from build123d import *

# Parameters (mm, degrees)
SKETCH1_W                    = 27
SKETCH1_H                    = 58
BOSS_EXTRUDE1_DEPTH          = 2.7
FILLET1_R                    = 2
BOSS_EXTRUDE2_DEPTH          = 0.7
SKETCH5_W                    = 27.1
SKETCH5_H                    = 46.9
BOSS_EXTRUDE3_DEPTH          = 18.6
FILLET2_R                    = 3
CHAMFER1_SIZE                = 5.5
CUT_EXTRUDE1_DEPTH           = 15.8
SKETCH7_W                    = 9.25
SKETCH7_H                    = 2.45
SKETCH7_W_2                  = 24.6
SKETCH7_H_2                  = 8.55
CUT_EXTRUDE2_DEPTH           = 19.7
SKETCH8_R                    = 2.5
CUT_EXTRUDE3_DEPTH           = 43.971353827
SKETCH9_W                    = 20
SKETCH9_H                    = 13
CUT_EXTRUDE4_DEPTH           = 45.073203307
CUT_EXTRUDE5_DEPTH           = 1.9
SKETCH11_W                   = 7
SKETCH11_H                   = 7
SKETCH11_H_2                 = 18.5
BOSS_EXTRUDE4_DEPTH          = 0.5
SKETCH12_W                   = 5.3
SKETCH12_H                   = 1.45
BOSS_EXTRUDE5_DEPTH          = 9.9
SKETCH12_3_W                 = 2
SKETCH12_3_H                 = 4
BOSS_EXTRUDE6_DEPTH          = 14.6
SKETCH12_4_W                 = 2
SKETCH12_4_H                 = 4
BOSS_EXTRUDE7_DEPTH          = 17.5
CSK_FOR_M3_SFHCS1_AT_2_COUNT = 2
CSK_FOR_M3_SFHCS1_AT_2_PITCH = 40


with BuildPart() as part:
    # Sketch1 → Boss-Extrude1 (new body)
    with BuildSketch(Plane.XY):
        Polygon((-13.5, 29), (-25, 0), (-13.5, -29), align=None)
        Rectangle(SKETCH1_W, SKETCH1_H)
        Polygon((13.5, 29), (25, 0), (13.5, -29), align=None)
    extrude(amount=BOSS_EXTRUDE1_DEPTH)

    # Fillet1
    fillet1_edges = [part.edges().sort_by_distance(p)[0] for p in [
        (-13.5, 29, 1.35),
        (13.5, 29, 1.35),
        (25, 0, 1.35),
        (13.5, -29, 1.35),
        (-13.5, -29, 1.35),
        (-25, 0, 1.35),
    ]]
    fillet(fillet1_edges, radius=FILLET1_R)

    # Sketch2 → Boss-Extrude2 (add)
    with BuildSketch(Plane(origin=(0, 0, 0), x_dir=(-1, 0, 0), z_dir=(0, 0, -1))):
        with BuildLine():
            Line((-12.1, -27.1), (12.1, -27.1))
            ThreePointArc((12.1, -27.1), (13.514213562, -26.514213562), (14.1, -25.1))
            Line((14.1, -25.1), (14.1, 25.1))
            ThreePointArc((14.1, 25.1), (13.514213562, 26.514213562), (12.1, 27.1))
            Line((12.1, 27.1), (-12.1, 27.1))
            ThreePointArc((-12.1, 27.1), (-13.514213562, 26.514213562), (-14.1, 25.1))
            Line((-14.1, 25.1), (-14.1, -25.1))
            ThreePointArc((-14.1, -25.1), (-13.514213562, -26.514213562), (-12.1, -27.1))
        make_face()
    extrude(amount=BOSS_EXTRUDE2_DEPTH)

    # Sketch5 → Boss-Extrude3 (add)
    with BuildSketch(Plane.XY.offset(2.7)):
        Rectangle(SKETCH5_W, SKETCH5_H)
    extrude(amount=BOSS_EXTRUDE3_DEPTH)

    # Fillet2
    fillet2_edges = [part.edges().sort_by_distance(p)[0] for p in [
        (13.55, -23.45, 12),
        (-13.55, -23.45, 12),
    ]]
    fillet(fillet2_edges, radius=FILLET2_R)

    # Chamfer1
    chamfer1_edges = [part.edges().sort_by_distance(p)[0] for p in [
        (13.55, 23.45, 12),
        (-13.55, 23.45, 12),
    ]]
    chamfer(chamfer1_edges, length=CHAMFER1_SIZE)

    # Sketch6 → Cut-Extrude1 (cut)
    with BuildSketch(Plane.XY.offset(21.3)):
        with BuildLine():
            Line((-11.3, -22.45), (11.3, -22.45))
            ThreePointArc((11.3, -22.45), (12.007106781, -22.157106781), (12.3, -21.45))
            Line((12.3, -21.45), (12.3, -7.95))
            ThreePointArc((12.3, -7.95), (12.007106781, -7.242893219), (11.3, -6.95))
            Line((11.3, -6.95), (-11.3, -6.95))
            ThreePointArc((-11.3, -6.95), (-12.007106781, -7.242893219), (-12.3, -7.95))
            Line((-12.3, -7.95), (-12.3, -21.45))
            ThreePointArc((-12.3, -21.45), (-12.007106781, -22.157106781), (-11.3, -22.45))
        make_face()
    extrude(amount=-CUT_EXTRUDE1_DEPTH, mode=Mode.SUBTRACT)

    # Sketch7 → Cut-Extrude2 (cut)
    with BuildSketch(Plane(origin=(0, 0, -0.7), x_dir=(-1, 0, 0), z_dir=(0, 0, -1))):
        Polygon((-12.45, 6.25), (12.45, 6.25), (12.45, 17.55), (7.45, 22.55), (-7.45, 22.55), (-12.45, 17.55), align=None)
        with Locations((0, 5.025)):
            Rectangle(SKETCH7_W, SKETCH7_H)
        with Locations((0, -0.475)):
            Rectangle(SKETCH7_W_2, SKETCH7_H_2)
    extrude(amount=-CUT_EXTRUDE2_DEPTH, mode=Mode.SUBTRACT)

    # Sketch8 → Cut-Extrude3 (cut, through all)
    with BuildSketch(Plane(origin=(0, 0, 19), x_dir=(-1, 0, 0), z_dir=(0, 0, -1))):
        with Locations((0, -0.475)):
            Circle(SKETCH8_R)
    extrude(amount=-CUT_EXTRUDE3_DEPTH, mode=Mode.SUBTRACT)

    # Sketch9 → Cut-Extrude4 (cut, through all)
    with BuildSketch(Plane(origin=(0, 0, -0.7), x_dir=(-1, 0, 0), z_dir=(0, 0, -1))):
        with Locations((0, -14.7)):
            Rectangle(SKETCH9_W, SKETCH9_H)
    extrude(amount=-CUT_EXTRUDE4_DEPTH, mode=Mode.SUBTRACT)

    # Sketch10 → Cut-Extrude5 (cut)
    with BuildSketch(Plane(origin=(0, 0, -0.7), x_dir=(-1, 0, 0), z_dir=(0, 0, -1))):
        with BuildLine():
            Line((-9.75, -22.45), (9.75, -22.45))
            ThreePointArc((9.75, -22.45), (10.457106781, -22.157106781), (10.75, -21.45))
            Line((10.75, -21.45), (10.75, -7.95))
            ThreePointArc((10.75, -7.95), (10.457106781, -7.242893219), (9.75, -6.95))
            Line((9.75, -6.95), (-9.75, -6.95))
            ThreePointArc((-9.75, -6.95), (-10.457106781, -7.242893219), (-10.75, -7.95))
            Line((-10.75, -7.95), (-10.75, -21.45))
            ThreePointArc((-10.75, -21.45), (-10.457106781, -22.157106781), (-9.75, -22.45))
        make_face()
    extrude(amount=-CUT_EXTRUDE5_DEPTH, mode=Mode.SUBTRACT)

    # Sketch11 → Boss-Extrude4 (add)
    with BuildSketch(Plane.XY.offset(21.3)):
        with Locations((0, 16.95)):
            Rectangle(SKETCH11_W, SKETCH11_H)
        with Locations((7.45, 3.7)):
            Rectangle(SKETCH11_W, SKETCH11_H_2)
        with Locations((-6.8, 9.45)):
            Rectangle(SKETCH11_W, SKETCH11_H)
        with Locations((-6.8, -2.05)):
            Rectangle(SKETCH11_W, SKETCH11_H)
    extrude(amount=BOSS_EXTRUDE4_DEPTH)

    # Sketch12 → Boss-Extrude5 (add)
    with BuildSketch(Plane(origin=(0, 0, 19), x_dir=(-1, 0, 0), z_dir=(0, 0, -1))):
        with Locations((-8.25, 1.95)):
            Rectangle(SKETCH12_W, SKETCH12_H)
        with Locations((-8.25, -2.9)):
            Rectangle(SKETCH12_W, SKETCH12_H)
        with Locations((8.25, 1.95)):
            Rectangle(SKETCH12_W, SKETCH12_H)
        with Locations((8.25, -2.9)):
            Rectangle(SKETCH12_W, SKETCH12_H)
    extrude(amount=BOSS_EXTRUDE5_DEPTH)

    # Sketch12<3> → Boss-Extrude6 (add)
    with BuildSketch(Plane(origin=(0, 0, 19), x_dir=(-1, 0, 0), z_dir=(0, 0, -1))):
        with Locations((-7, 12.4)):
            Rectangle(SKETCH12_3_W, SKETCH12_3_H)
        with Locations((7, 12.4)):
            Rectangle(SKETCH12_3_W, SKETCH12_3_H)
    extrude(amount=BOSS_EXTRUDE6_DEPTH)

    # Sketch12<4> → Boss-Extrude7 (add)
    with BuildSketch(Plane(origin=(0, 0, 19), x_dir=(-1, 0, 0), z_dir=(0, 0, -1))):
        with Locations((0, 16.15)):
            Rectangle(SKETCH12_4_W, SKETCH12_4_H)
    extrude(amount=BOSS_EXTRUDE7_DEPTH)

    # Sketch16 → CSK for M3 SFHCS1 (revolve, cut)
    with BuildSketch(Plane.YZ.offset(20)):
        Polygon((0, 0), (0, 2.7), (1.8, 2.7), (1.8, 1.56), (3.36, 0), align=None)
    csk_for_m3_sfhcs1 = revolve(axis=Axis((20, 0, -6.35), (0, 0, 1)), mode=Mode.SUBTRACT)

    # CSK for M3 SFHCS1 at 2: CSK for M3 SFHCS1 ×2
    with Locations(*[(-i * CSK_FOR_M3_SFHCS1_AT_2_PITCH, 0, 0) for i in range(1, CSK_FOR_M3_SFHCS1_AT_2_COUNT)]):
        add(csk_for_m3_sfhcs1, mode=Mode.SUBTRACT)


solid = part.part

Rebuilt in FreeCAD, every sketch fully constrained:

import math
import FreeCAD as App
import Part
import Sketcher
Q = App.Units.Quantity


def edges_at(feature, points):
    """Names of the edges that pass closest to the given points."""
    edges = feature.Shape.Edges
    near = lambda p: min(range(len(edges)), key=lambda i: edges[i].distToShape(Part.Vertex(*p))[0])
    return sorted({f"Edge{near(p) + 1}" for p in points})

doc = App.newDocument("Part")
params = doc.addObject("Spreadsheet::Sheet", "Params")
for row, (alias, value) in enumerate([
    ("sketch1_width", "27 mm"),
    ("pad1_length", "2.7 mm"),
    ("fillet_radius", "2 mm"),
    ("sketch2_radius", "2 mm"),
    ("sketch2_width", "24.2 mm"),
    ("sketch2_height", "50.2 mm"),
    ("pad2_length", "0.7 mm"),
    ("sketch3_width", "27.1 mm"),
    ("sketch3_height", "46.9 mm"),
    ("pad3_length", "18.6 mm"),
    ("fillet2_radius", "3 mm"),
    ("chamfer_size", "5.5 mm"),
    ("sketch4_radius", "1 mm"),
    ("sketch4_width", "22.6 mm"),
    ("sketch4_height", "13.5 mm"),
    ("pocket1_length", "15.8 mm"),
    ("sketch5_width", "24.6 mm"),
    ("sketch5_width2", "14.9 mm"),
    ("sketch5_height", "11.3 mm"),
    ("sketch5_height2", "2.45 mm"),
    ("pocket2_length", "19.7 mm"),
    ("sketch6_diameter", "5 mm"),
    ("sketch7_width", "20 mm"),
    ("sketch7_height", "13 mm"),
    ("sketch8_radius", "1 mm"),
    ("sketch8_width", "19.5 mm"),
    ("sketch8_height", "13.5 mm"),
    ("pocket5_length", "1.9 mm"),
    ("sketch9_width", "7 mm"),
    ("sketch9_height", "18.5 mm"),
    ("pad4_length", "0.5 mm"),
    ("sketch10_width", "5.3 mm"),
    ("sketch10_height", "1.45 mm"),
    ("pad5_length", "9.9 mm"),
    ("sketch11_width", "2 mm"),
    ("sketch11_height", "4 mm"),
    ("pad6_length", "14.6 mm"),
    ("sketch12_width", "2 mm"),
    ("sketch12_height", "4 mm"),
    ("pad7_length", "17.5 mm"),
    ("sketch13_width", "1.8 mm"),
    ("sketch13_height", "2.7 mm"),
    ("sketch13_width2", "3.36 mm"),
    ("groove_angle", "360 deg"),
    ("linearpattern_pitch", "40 mm"),
], start=1):
    params.set(f"A{row}", alias)
    params.set(f"B{row}", "=" + value)
    params.setAlias(f"B{row}", alias)

body = doc.addObject("PartDesign::Body", "Body")

# Sketch on XY plane
sketch1 = body.newObject("Sketcher::SketchObject", "Sketch")
sketch1.AttachmentSupport = (doc.getObject("XY_Plane"), [""])
sketch1.MapMode = "FlatFace"
sketch1.addGeometry(Part.LineSegment(App.Vector(-14, 29, 0), App.Vector(-25, 0, 0)), False)
sketch1.addGeometry(Part.LineSegment(App.Vector(-25, 0, 0), App.Vector(-14, -29, 0)), False)
sketch1.addGeometry(Part.LineSegment(App.Vector(-14, -29, 0), App.Vector(14, -29, 0)), False)
sketch1.addGeometry(Part.LineSegment(App.Vector(14, -29, 0), App.Vector(25, 0, 0)), False)
sketch1.addGeometry(Part.LineSegment(App.Vector(25, 0, 0), App.Vector(14, 29, 0)), False)
sketch1.addGeometry(Part.LineSegment(App.Vector(14, 29, 0), App.Vector(-14, 29, 0)), False)
sketch1.addConstraint(Sketcher.Constraint("Coincident", 0, 2, 1, 1))
sketch1.addConstraint(Sketcher.Constraint("Coincident", 1, 2, 2, 1))
sketch1.addConstraint(Sketcher.Constraint("Coincident", 2, 2, 3, 1))
sketch1.addConstraint(Sketcher.Constraint("Coincident", 3, 2, 4, 1))
sketch1.addConstraint(Sketcher.Constraint("Coincident", 4, 2, 5, 1))
sketch1.addConstraint(Sketcher.Constraint("Coincident", 5, 2, 0, 1))
sketch1.addConstraint(Sketcher.Constraint("Horizontal", 2))
sketch1.addConstraint(Sketcher.Constraint("Horizontal", 5))
sketch1.addConstraint(Sketcher.Constraint("Symmetric", 0, 2, 3, 2, -1, 1))
sketch1.addConstraint(Sketcher.Constraint("Symmetric", 1, 2, 4, 2, -1, 1))
sketch1.addConstraint(Sketcher.Constraint("PointOnObject", 0, 2, -1))
sketch1.addConstraint(Sketcher.Constraint("Parallel", 0, 3))
sketch1.addConstraint(Sketcher.Constraint("Vertical", 2, 2, 4, 2))
sketch1.addConstraint(Sketcher.Constraint("DistanceX", 2, 1, 2, 2, 27.0))
sketch1.addConstraint(Sketcher.Constraint("DistanceX", 0, 2, -1, 1, 25.0))
sketch1.addConstraint(Sketcher.Constraint("DistanceY", 1, 2, -1, 1, 29.0))
sketch1.setExpression("Constraints[13]", "Params.sketch1_width")
pad1 = body.newObject("PartDesign::Pad", "Pad")
pad1.Profile = sketch1
pad1.setExpression("Length", "Params.pad1_length")
doc.recompute()

fillet = body.newObject("PartDesign::Fillet", "Fillet")
fillet.Base = (pad1, edges_at(pad1, [
    (-13.5, 29, 1.35),
    (13.5, 29, 1.35),
    (25, 0, 1.35),
    (13.5, -29, 1.35),
    (-13.5, -29, 1.35),
    (-25, 0, 1.35),
]))
fillet.setExpression("Radius", "Params.fillet_radius")

# Sketch on XY plane
sketch2 = body.newObject("Sketcher::SketchObject", "Sketch001")
sketch2.AttachmentSupport = (doc.getObject("XY_Plane"), [""])
sketch2.MapMode = "FlatFace"
sketch2.addGeometry(Part.LineSegment(App.Vector(12.1, -27.1, 0), App.Vector(-12.1, -27.1, 0)), False)
sketch2.addGeometry(Part.ArcOfCircle(Part.Circle(App.Vector(-12.1, -25.1, 0), App.Vector(0, 0, 1), 2), math.radians(-180), math.radians(-90)), False)
sketch2.addGeometry(Part.LineSegment(App.Vector(-14.1, -25.1, 0), App.Vector(-14.1, 25.1, 0)), False)
sketch2.addGeometry(Part.ArcOfCircle(Part.Circle(App.Vector(-12.1, 25.1, 0), App.Vector(0, 0, 1), 2), math.radians(90), math.radians(180)), False)
sketch2.addGeometry(Part.LineSegment(App.Vector(-12.1, 27.1, 0), App.Vector(12.1, 27.1, 0)), False)
sketch2.addGeometry(Part.ArcOfCircle(Part.Circle(App.Vector(12.1, 25.1, 0), App.Vector(0, 0, 1), 2), math.radians(0), math.radians(90)), False)
sketch2.addGeometry(Part.LineSegment(App.Vector(14.1, 25.1, 0), App.Vector(14.1, -25.1, 0)), False)
sketch2.addGeometry(Part.ArcOfCircle(Part.Circle(App.Vector(12.1, -25.1, 0), App.Vector(0, 0, 1), 2), math.radians(-90), math.radians(0)), False)
sketch2.addConstraint(Sketcher.Constraint("Tangent", 0, 2, 1, 2))
sketch2.addConstraint(Sketcher.Constraint("Tangent", 1, 1, 2, 1))
sketch2.addConstraint(Sketcher.Constraint("Tangent", 2, 2, 3, 2))
sketch2.addConstraint(Sketcher.Constraint("Tangent", 3, 1, 4, 1))
sketch2.addConstraint(Sketcher.Constraint("Tangent", 4, 2, 5, 2))
sketch2.addConstraint(Sketcher.Constraint("Tangent", 5, 1, 6, 1))
sketch2.addConstraint(Sketcher.Constraint("Tangent", 6, 2, 7, 2))
sketch2.addConstraint(Sketcher.Constraint("Tangent", 7, 1, 0, 1))
sketch2.addConstraint(Sketcher.Constraint("Horizontal", 0))
sketch2.addConstraint(Sketcher.Constraint("Vertical", 2))
sketch2.addConstraint(Sketcher.Constraint("Horizontal", 4))
sketch2.addConstraint(Sketcher.Constraint("Vertical", 6))
sketch2.addConstraint(Sketcher.Constraint("Equal", 1, 3))
sketch2.addConstraint(Sketcher.Constraint("Equal", 3, 5))
sketch2.addConstraint(Sketcher.Constraint("Equal", 5, 7))
sketch2.addConstraint(Sketcher.Constraint("Symmetric", 1, 3, 5, 3, -1, 1))
sketch2.addConstraint(Sketcher.Constraint("Radius", 1, 2.0))
sketch2.addConstraint(Sketcher.Constraint("DistanceX", 0, 2, 0, 1, 24.2))
sketch2.addConstraint(Sketcher.Constraint("DistanceY", 2, 1, 2, 2, 50.2))
sketch2.setExpression("Constraints[16]", "Params.sketch2_radius")
sketch2.setExpression("Constraints[17]", "Params.sketch2_width")
sketch2.setExpression("Constraints[18]", "Params.sketch2_height")
pad2 = body.newObject("PartDesign::Pad", "Pad001")
pad2.Profile = sketch2
pad2.setExpression("Length", "Params.pad2_length")
pad2.Reversed = True

# Sketch on XY plane
sketch3 = body.newObject("Sketcher::SketchObject", "Sketch002")
sketch3.AttachmentSupport = (doc.getObject("XY_Plane"), [""])
sketch3.MapMode = "FlatFace"
sketch3.AttachmentOffset = App.Placement(App.Vector(0, 0, 2.7), App.Rotation())
sketch3.addGeometry(Part.LineSegment(App.Vector(-14, 23, 0), App.Vector(-14, -23, 0)), False)
sketch3.addGeometry(Part.LineSegment(App.Vector(-14, -23, 0), App.Vector(14, -23, 0)), False)
sketch3.addGeometry(Part.LineSegment(App.Vector(14, -23, 0), App.Vector(14, 23, 0)), False)
sketch3.addGeometry(Part.LineSegment(App.Vector(14, 23, 0), App.Vector(-14, 23, 0)), False)
sketch3.addConstraint(Sketcher.Constraint("Coincident", 0, 2, 1, 1))
sketch3.addConstraint(Sketcher.Constraint("Coincident", 1, 2, 2, 1))
sketch3.addConstraint(Sketcher.Constraint("Coincident", 2, 2, 3, 1))
sketch3.addConstraint(Sketcher.Constraint("Coincident", 3, 2, 0, 1))
sketch3.addConstraint(Sketcher.Constraint("Vertical", 0))
sketch3.addConstraint(Sketcher.Constraint("Horizontal", 1))
sketch3.addConstraint(Sketcher.Constraint("Vertical", 2))
sketch3.addConstraint(Sketcher.Constraint("Horizontal", 3))
sketch3.addConstraint(Sketcher.Constraint("Symmetric", 0, 2, 2, 2, -1, 1))
sketch3.addConstraint(Sketcher.Constraint("DistanceX", 1, 1, 1, 2, 27.1))
sketch3.addConstraint(Sketcher.Constraint("DistanceY", 0, 2, 0, 1, 46.9))
sketch3.setExpression("Constraints[9]", "Params.sketch3_width")
sketch3.setExpression("Constraints[10]", "Params.sketch3_height")
pad3 = body.newObject("PartDesign::Pad", "Pad002")
pad3.Profile = sketch3
pad3.setExpression("Length", "Params.pad3_length")
doc.recompute()

fillet2 = body.newObject("PartDesign::Fillet", "Fillet001")
fillet2.Base = (pad3, edges_at(pad3, [(13.55, -23.45, 12), (-13.55, -23.45, 12)]))
fillet2.setExpression("Radius", "Params.fillet2_radius")
doc.recompute()

chamfer = body.newObject("PartDesign::Chamfer", "Chamfer")
chamfer.Base = (fillet2, edges_at(fillet2, [(13.55, 23.45, 12), (-13.55, 23.45, 12)]))
chamfer.setExpression("Size", "Params.chamfer_size")

# Sketch on XY plane
sketch4 = body.newObject("Sketcher::SketchObject", "Sketch003")
sketch4.AttachmentSupport = (doc.getObject("XY_Plane"), [""])
sketch4.MapMode = "FlatFace"
sketch4.AttachmentOffset = App.Placement(App.Vector(0, 0, 21.3), App.Rotation())
sketch4.addGeometry(Part.LineSegment(App.Vector(-11.3, -22.4, 0), App.Vector(11.3, -22.4, 0)), False)
sketch4.addGeometry(Part.ArcOfCircle(Part.Circle(App.Vector(11.3, -21.4, 0), App.Vector(0, 0, 1), 1), math.radians(-90), math.radians(0)), False)
sketch4.addGeometry(Part.LineSegment(App.Vector(12.3, -21.4, 0), App.Vector(12.3, -8, 0)), False)
sketch4.addGeometry(Part.ArcOfCircle(Part.Circle(App.Vector(11.3, -8, 0), App.Vector(0, 0, 1), 1), math.radians(0), math.radians(90)), False)
sketch4.addGeometry(Part.LineSegment(App.Vector(11.3, -7, 0), App.Vector(-11.3, -7, 0)), False)
sketch4.addGeometry(Part.ArcOfCircle(Part.Circle(App.Vector(-11.3, -8, 0), App.Vector(0, 0, 1), 1), math.radians(90), math.radians(180)), False)
sketch4.addGeometry(Part.LineSegment(App.Vector(-12.3, -8, 0), App.Vector(-12.3, -21.4, 0)), False)
sketch4.addGeometry(Part.ArcOfCircle(Part.Circle(App.Vector(-11.3, -21.4, 0), App.Vector(0, 0, 1), 1), math.radians(-180), math.radians(-90)), False)
sketch4.addConstraint(Sketcher.Constraint("Tangent", 0, 2, 1, 1))
sketch4.addConstraint(Sketcher.Constraint("Tangent", 1, 2, 2, 1))
sketch4.addConstraint(Sketcher.Constraint("Tangent", 2, 2, 3, 1))
sketch4.addConstraint(Sketcher.Constraint("Tangent", 3, 2, 4, 1))
sketch4.addConstraint(Sketcher.Constraint("Tangent", 4, 2, 5, 1))
sketch4.addConstraint(Sketcher.Constraint("Tangent", 5, 2, 6, 1))
sketch4.addConstraint(Sketcher.Constraint("Tangent", 6, 2, 7, 1))
sketch4.addConstraint(Sketcher.Constraint("Tangent", 7, 2, 0, 1))
sketch4.addConstraint(Sketcher.Constraint("Horizontal", 0))
sketch4.addConstraint(Sketcher.Constraint("Vertical", 2))
sketch4.addConstraint(Sketcher.Constraint("Horizontal", 4))
sketch4.addConstraint(Sketcher.Constraint("Vertical", 6))
sketch4.addConstraint(Sketcher.Constraint("Equal", 1, 3))
sketch4.addConstraint(Sketcher.Constraint("Equal", 3, 5))
sketch4.addConstraint(Sketcher.Constraint("Equal", 5, 7))
sketch4.addConstraint(Sketcher.Constraint("Radius", 1, 1.0))
sketch4.addConstraint(Sketcher.Constraint("DistanceX", 0, 1, 0, 2, 22.6))
sketch4.addConstraint(Sketcher.Constraint("DistanceY", 2, 1, 2, 2, 13.5))
sketch4.addConstraint(Sketcher.Constraint("DistanceX", -1, 1, 1, 3, 11.3))
sketch4.addConstraint(Sketcher.Constraint("DistanceY", 1, 3, -1, 1, 21.45))
sketch4.setExpression("Constraints[15]", "Params.sketch4_radius")
sketch4.setExpression("Constraints[16]", "Params.sketch4_width")
sketch4.setExpression("Constraints[17]", "Params.sketch4_height")
pocket1 = body.newObject("PartDesign::Pocket", "Pocket")
pocket1.Profile = sketch4
pocket1.setExpression("Length", "Params.pocket1_length")

# Sketch on XY plane
sketch5 = body.newObject("Sketcher::SketchObject", "Sketch004")
sketch5.AttachmentSupport = (doc.getObject("XY_Plane"), [""])
sketch5.MapMode = "FlatFace"
sketch5.AttachmentOffset = App.Placement(App.Vector(0, 0, -0.7), App.Rotation())
sketch5.addGeometry(Part.LineSegment(App.Vector(12.4, 6.2, 0), App.Vector(4.6, 6.2, 0)), False)
sketch5.addGeometry(Part.LineSegment(App.Vector(4.6, 6.2, 0), App.Vector(4.6, 3.8, 0)), False)
sketch5.addGeometry(Part.LineSegment(App.Vector(4.6, 3.8, 0), App.Vector(12.3, 3.8, 0)), False)
sketch5.addGeometry(Part.LineSegment(App.Vector(12.3, 3.8, 0), App.Vector(12.3, -4.8, 0)), False)
sketch5.addGeometry(Part.LineSegment(App.Vector(12.3, -4.8, 0), App.Vector(-12.3, -4.8, 0)), False)
sketch5.addGeometry(Part.LineSegment(App.Vector(-12.3, -4.8, 0), App.Vector(-12.3, 3.8, 0)), False)
sketch5.addGeometry(Part.LineSegment(App.Vector(-12.3, 3.8, 0), App.Vector(-4.6, 3.8, 0)), False)
sketch5.addGeometry(Part.LineSegment(App.Vector(-4.6, 3.8, 0), App.Vector(-4.6, 6.2, 0)), False)
sketch5.addGeometry(Part.LineSegment(App.Vector(-4.6, 6.2, 0), App.Vector(-12.4, 6.2, 0)), False)
sketch5.addGeometry(Part.LineSegment(App.Vector(-12.4, 6.2, 0), App.Vector(-12.4, 17.6, 0)), False)
sketch5.addGeometry(Part.LineSegment(App.Vector(-12.4, 17.6, 0), App.Vector(-7.5, 22.6, 0)), False)
sketch5.addGeometry(Part.LineSegment(App.Vector(-7.5, 22.6, 0), App.Vector(7.5, 22.6, 0)), False)
sketch5.addGeometry(Part.LineSegment(App.Vector(7.5, 22.6, 0), App.Vector(12.4, 17.6, 0)), False)
sketch5.addGeometry(Part.LineSegment(App.Vector(12.4, 17.6, 0), App.Vector(12.4, 6.2, 0)), False)
sketch5.addConstraint(Sketcher.Constraint("Coincident", 0, 2, 1, 1))
sketch5.addConstraint(Sketcher.Constraint("Coincident", 1, 2, 2, 1))
sketch5.addConstraint(Sketcher.Constraint("Coincident", 2, 2, 3, 1))
sketch5.addConstraint(Sketcher.Constraint("Coincident", 3, 2, 4, 1))
sketch5.addConstraint(Sketcher.Constraint("Coincident", 4, 2, 5, 1))
sketch5.addConstraint(Sketcher.Constraint("Coincident", 5, 2, 6, 1))
sketch5.addConstraint(Sketcher.Constraint("Coincident", 6, 2, 7, 1))
sketch5.addConstraint(Sketcher.Constraint("Coincident", 7, 2, 8, 1))
sketch5.addConstraint(Sketcher.Constraint("Coincident", 8, 2, 9, 1))
sketch5.addConstraint(Sketcher.Constraint("Coincident", 9, 2, 10, 1))
sketch5.addConstraint(Sketcher.Constraint("Coincident", 10, 2, 11, 1))
sketch5.addConstraint(Sketcher.Constraint("Coincident", 11, 2, 12, 1))
sketch5.addConstraint(Sketcher.Constraint("Coincident", 12, 2, 13, 1))
sketch5.addConstraint(Sketcher.Constraint("Coincident", 13, 2, 0, 1))
sketch5.addConstraint(Sketcher.Constraint("Horizontal", 0))
sketch5.addConstraint(Sketcher.Constraint("Vertical", 1))
sketch5.addConstraint(Sketcher.Constraint("Horizontal", 2))
sketch5.addConstraint(Sketcher.Constraint("Vertical", 3))
sketch5.addConstraint(Sketcher.Constraint("Horizontal", 4))
sketch5.addConstraint(Sketcher.Constraint("Vertical", 5))
sketch5.addConstraint(Sketcher.Constraint("Horizontal", 6))
sketch5.addConstraint(Sketcher.Constraint("Vertical", 7))
sketch5.addConstraint(Sketcher.Constraint("Horizontal", 8))
sketch5.addConstraint(Sketcher.Constraint("Vertical", 9))
sketch5.addConstraint(Sketcher.Constraint("Horizontal", 11))
sketch5.addConstraint(Sketcher.Constraint("Vertical", 13))
sketch5.addConstraint(Sketcher.Constraint("Symmetric", 2, 2, 5, 2, -2))
sketch5.addConstraint(Sketcher.Constraint("Symmetric", 0, 2, 7, 2, -2))
sketch5.addConstraint(Sketcher.Constraint("Symmetric", 9, 2, 12, 2, -2))
sketch5.addConstraint(Sketcher.Constraint("Perpendicular", 10, 12))
sketch5.addConstraint(Sketcher.Constraint("Equal", 10, 12))
sketch5.addConstraint(Sketcher.Constraint("DistanceX", 4, 2, 4, 1, 24.6))
sketch5.addConstraint(Sketcher.Constraint("DistanceX", 11, 1, 11, 2, 14.9))
sketch5.addConstraint(Sketcher.Constraint("DistanceY", 9, 1, 9, 2, 11.3))
sketch5.addConstraint(Sketcher.Constraint("DistanceY", 3, 2, 0, 2, 11.0))
sketch5.addConstraint(Sketcher.Constraint("DistanceX", 9, 2, 10, 2, 5.0))
sketch5.addConstraint(Sketcher.Constraint("DistanceY", 1, 2, 1, 1, 2.45))
sketch5.addConstraint(Sketcher.Constraint("DistanceY", -1, 1, 1, 2, 3.8))
sketch5.addConstraint(Sketcher.Constraint("DistanceX", 0, 2, 0, 1, 7.825))
sketch5.setExpression("Constraints[31]", "Params.sketch5_width")
sketch5.setExpression("Constraints[32]", "Params.sketch5_width2")
sketch5.setExpression("Constraints[33]", "Params.sketch5_height")
sketch5.setExpression("Constraints[36]", "Params.sketch5_height2")
pocket2 = body.newObject("PartDesign::Pocket", "Pocket001")
pocket2.Profile = sketch5
pocket2.setExpression("Length", "Params.pocket2_length")
pocket2.Reversed = True

# Sketch on XY plane
sketch6 = body.newObject("Sketcher::SketchObject", "Sketch005")
sketch6.AttachmentSupport = (doc.getObject("XY_Plane"), [""])
sketch6.MapMode = "FlatFace"
sketch6.AttachmentOffset = App.Placement(App.Vector(0, 0, 19), App.Rotation())
sketch6.addGeometry(Part.Circle(App.Vector(0, -0.5, 0), App.Vector(0, 0, 1), 2.5), False)
sketch6.addConstraint(Sketcher.Constraint("PointOnObject", 0, 3, -2))
sketch6.addConstraint(Sketcher.Constraint("Diameter", 0, 5.0))
sketch6.addConstraint(Sketcher.Constraint("DistanceY", 0, 3, -1, 1, 0.475))
sketch6.setExpression("Constraints[1]", "Params.sketch6_diameter")
pocket3 = body.newObject("PartDesign::Pocket", "Pocket002")
pocket3.Profile = sketch6
pocket3.Type = "ThroughAll"
pocket3.Reversed = True

# Sketch on XY plane
sketch7 = body.newObject("Sketcher::SketchObject", "Sketch006")
sketch7.AttachmentSupport = (doc.getObject("XY_Plane"), [""])
sketch7.MapMode = "FlatFace"
sketch7.AttachmentOffset = App.Placement(App.Vector(0, 0, -0.7), App.Rotation())
sketch7.addGeometry(Part.LineSegment(App.Vector(10, -8, 0), App.Vector(10, -21, 0)), False)
sketch7.addGeometry(Part.LineSegment(App.Vector(10, -21, 0), App.Vector(-10, -21, 0)), False)
sketch7.addGeometry(Part.LineSegment(App.Vector(-10, -21, 0), App.Vector(-10, -8, 0)), False)
sketch7.addGeometry(Part.LineSegment(App.Vector(-10, -8, 0), App.Vector(10, -8, 0)), False)
sketch7.addConstraint(Sketcher.Constraint("Coincident", 0, 2, 1, 1))
sketch7.addConstraint(Sketcher.Constraint("Coincident", 1, 2, 2, 1))
sketch7.addConstraint(Sketcher.Constraint("Coincident", 2, 2, 3, 1))
sketch7.addConstraint(Sketcher.Constraint("Coincident", 3, 2, 0, 1))
sketch7.addConstraint(Sketcher.Constraint("Vertical", 0))
sketch7.addConstraint(Sketcher.Constraint("Horizontal", 1))
sketch7.addConstraint(Sketcher.Constraint("Vertical", 2))
sketch7.addConstraint(Sketcher.Constraint("Horizontal", 3))
sketch7.addConstraint(Sketcher.Constraint("DistanceX", 1, 2, 1, 1, 20.0))
sketch7.addConstraint(Sketcher.Constraint("DistanceY", 0, 2, 0, 1, 13.0))
sketch7.addConstraint(Sketcher.Constraint("DistanceX", -1, 1, 0, 2, 10.0))
sketch7.addConstraint(Sketcher.Constraint("DistanceY", 0, 2, -1, 1, 21.2))
sketch7.setExpression("Constraints[8]", "Params.sketch7_width")
sketch7.setExpression("Constraints[9]", "Params.sketch7_height")
pocket4 = body.newObject("PartDesign::Pocket", "Pocket003")
pocket4.Profile = sketch7
pocket4.Type = "ThroughAll"
pocket4.Reversed = True

# Sketch on XY plane
sketch8 = body.newObject("Sketcher::SketchObject", "Sketch007")
sketch8.AttachmentSupport = (doc.getObject("XY_Plane"), [""])
sketch8.MapMode = "FlatFace"
sketch8.AttachmentOffset = App.Placement(App.Vector(0, 0, -0.7), App.Rotation())
sketch8.addGeometry(Part.LineSegment(App.Vector(9.8, -22.4, 0), App.Vector(-9.8, -22.4, 0)), False)
sketch8.addGeometry(Part.ArcOfCircle(Part.Circle(App.Vector(-9.7, -21.4, 0), App.Vector(0, 0, 1), 1), math.radians(-180), math.radians(-90)), False)
sketch8.addGeometry(Part.LineSegment(App.Vector(-10.8, -21.4, 0), App.Vector(-10.8, -8, 0)), False)
sketch8.addGeometry(Part.ArcOfCircle(Part.Circle(App.Vector(-9.7, -8, 0), App.Vector(0, 0, 1), 1), math.radians(90), math.radians(180)), False)
sketch8.addGeometry(Part.LineSegment(App.Vector(-9.8, -7, 0), App.Vector(9.8, -7, 0)), False)
sketch8.addGeometry(Part.ArcOfCircle(Part.Circle(App.Vector(9.7, -8, 0), App.Vector(0, 0, 1), 1), math.radians(0), math.radians(90)), False)
sketch8.addGeometry(Part.LineSegment(App.Vector(10.8, -8, 0), App.Vector(10.8, -21.4, 0)), False)
sketch8.addGeometry(Part.ArcOfCircle(Part.Circle(App.Vector(9.7, -21.4, 0), App.Vector(0, 0, 1), 1), math.radians(-90), math.radians(0)), False)
sketch8.addConstraint(Sketcher.Constraint("Tangent", 0, 2, 1, 2))
sketch8.addConstraint(Sketcher.Constraint("Tangent", 1, 1, 2, 1))
sketch8.addConstraint(Sketcher.Constraint("Tangent", 2, 2, 3, 2))
sketch8.addConstraint(Sketcher.Constraint("Tangent", 3, 1, 4, 1))
sketch8.addConstraint(Sketcher.Constraint("Tangent", 4, 2, 5, 2))
sketch8.addConstraint(Sketcher.Constraint("Tangent", 5, 1, 6, 1))
sketch8.addConstraint(Sketcher.Constraint("Tangent", 6, 2, 7, 2))
sketch8.addConstraint(Sketcher.Constraint("Tangent", 7, 1, 0, 1))
sketch8.addConstraint(Sketcher.Constraint("Horizontal", 0))
sketch8.addConstraint(Sketcher.Constraint("Vertical", 2))
sketch8.addConstraint(Sketcher.Constraint("Horizontal", 4))
sketch8.addConstraint(Sketcher.Constraint("Vertical", 6))
sketch8.addConstraint(Sketcher.Constraint("Equal", 1, 3))
sketch8.addConstraint(Sketcher.Constraint("Equal", 3, 5))
sketch8.addConstraint(Sketcher.Constraint("Equal", 5, 7))
sketch8.addConstraint(Sketcher.Constraint("Radius", 1, 1.0))
sketch8.addConstraint(Sketcher.Constraint("DistanceX", 0, 2, 0, 1, 19.5))
sketch8.addConstraint(Sketcher.Constraint("DistanceY", 2, 1, 2, 2, 13.5))
sketch8.addConstraint(Sketcher.Constraint("DistanceX", 1, 3, -1, 1, 9.75))
sketch8.addConstraint(Sketcher.Constraint("DistanceY", 1, 3, -1, 1, 21.45))
sketch8.setExpression("Constraints[15]", "Params.sketch8_radius")
sketch8.setExpression("Constraints[16]", "Params.sketch8_width")
sketch8.setExpression("Constraints[17]", "Params.sketch8_height")
pocket5 = body.newObject("PartDesign::Pocket", "Pocket004")
pocket5.Profile = sketch8
pocket5.setExpression("Length", "Params.pocket5_length")
pocket5.Reversed = True

# Sketch on XY plane
sketch9 = body.newObject("Sketcher::SketchObject", "Sketch008")
sketch9.AttachmentSupport = (doc.getObject("XY_Plane"), [""])
sketch9.MapMode = "FlatFace"
sketch9.AttachmentOffset = App.Placement(App.Vector(0, 0, 21.3), App.Rotation())
sketch9.addGeometry(Part.LineSegment(App.Vector(-4, 20, 0), App.Vector(-4, 13, 0)), False)
sketch9.addGeometry(Part.LineSegment(App.Vector(-4, 13, 0), App.Vector(4, 13, 0)), False)
sketch9.addGeometry(Part.LineSegment(App.Vector(4, 13, 0), App.Vector(4, 20, 0)), False)
sketch9.addGeometry(Part.LineSegment(App.Vector(4, 20, 0), App.Vector(-4, 20, 0)), False)
sketch9.addGeometry(Part.LineSegment(App.Vector(4, 13, 0), App.Vector(4, -6, 0)), False)
sketch9.addGeometry(Part.LineSegment(App.Vector(4, -6, 0), App.Vector(11, -6, 0)), False)
sketch9.addGeometry(Part.LineSegment(App.Vector(11, -6, 0), App.Vector(11, 13, 0)), False)
sketch9.addGeometry(Part.LineSegment(App.Vector(11, 13, 0), App.Vector(4, 13, 0)), False)
sketch9.addGeometry(Part.LineSegment(App.Vector(-10, 13, 0), App.Vector(-10, 6, 0)), False)
sketch9.addGeometry(Part.LineSegment(App.Vector(-10, 6, 0), App.Vector(-3, 6, 0)), False)
sketch9.addGeometry(Part.LineSegment(App.Vector(-3, 6, 0), App.Vector(-3, 13, 0)), False)
sketch9.addGeometry(Part.LineSegment(App.Vector(-3, 13, 0), App.Vector(-10, 13, 0)), False)
sketch9.addGeometry(Part.LineSegment(App.Vector(-10, 1, 0), App.Vector(-10, -6, 0)), False)
sketch9.addGeometry(Part.LineSegment(App.Vector(-10, -6, 0), App.Vector(-3, -6, 0)), False)
sketch9.addGeometry(Part.LineSegment(App.Vector(-3, -6, 0), App.Vector(-3, 1, 0)), False)
sketch9.addGeometry(Part.LineSegment(App.Vector(-3, 1, 0), App.Vector(-10, 1, 0)), False)
sketch9.addConstraint(Sketcher.Constraint("Coincident", 0, 2, 1, 1))
sketch9.addConstraint(Sketcher.Constraint("Coincident", 1, 2, 2, 1))
sketch9.addConstraint(Sketcher.Constraint("Coincident", 2, 2, 3, 1))
sketch9.addConstraint(Sketcher.Constraint("Coincident", 3, 2, 0, 1))
sketch9.addConstraint(Sketcher.Constraint("Coincident", 4, 2, 5, 1))
sketch9.addConstraint(Sketcher.Constraint("Coincident", 5, 2, 6, 1))
sketch9.addConstraint(Sketcher.Constraint("Coincident", 6, 2, 7, 1))
sketch9.addConstraint(Sketcher.Constraint("Coincident", 7, 2, 4, 1))
sketch9.addConstraint(Sketcher.Constraint("Coincident", 8, 2, 9, 1))
sketch9.addConstraint(Sketcher.Constraint("Coincident", 9, 2, 10, 1))
sketch9.addConstraint(Sketcher.Constraint("Coincident", 10, 2, 11, 1))
sketch9.addConstraint(Sketcher.Constraint("Coincident", 11, 2, 8, 1))
sketch9.addConstraint(Sketcher.Constraint("Coincident", 12, 2, 13, 1))
sketch9.addConstraint(Sketcher.Constraint("Coincident", 13, 2, 14, 1))
sketch9.addConstraint(Sketcher.Constraint("Coincident", 14, 2, 15, 1))
sketch9.addConstraint(Sketcher.Constraint("Coincident", 15, 2, 12, 1))
sketch9.addConstraint(Sketcher.Constraint("Vertical", 0))
sketch9.addConstraint(Sketcher.Constraint("Horizontal", 1))
sketch9.addConstraint(Sketcher.Constraint("Vertical", 2))
sketch9.addConstraint(Sketcher.Constraint("Horizontal", 3))
sketch9.addConstraint(Sketcher.Constraint("Vertical", 4))
sketch9.addConstraint(Sketcher.Constraint("Horizontal", 5))
sketch9.addConstraint(Sketcher.Constraint("Vertical", 6))
sketch9.addConstraint(Sketcher.Constraint("Horizontal", 7))
sketch9.addConstraint(Sketcher.Constraint("Vertical", 8))
sketch9.addConstraint(Sketcher.Constraint("Horizontal", 9))
sketch9.addConstraint(Sketcher.Constraint("Vertical", 10))
sketch9.addConstraint(Sketcher.Constraint("Horizontal", 11))
sketch9.addConstraint(Sketcher.Constraint("Vertical", 12))
sketch9.addConstraint(Sketcher.Constraint("Horizontal", 13))
sketch9.addConstraint(Sketcher.Constraint("Vertical", 14))
sketch9.addConstraint(Sketcher.Constraint("Horizontal", 15))
sketch9.addConstraint(Sketcher.Constraint("Horizontal", 7, 2, 10, 2))
sketch9.addConstraint(Sketcher.Constraint("Horizontal", 5, 2, 12, 2))
sketch9.addConstraint(Sketcher.Constraint("Vertical", 11, 2, 12, 2))
sketch9.addConstraint(Sketcher.Constraint("Vertical", 10, 2, 13, 2))
sketch9.addConstraint(Sketcher.Constraint("Equal", 3, 5))
sketch9.addConstraint(Sketcher.Constraint("Equal", 7, 9))
sketch9.addConstraint(Sketcher.Constraint("Equal", 15, 0))
sketch9.addConstraint(Sketcher.Constraint("Equal", 2, 8))
sketch9.addConstraint(Sketcher.Constraint("Equal", 10, 12))
sketch9.addConstraint(Sketcher.Constraint("DistanceX", 1, 1, 1, 2, 7.0))
sketch9.addConstraint(Sketcher.Constraint("DistanceY", 4, 2, 4, 1, 18.5))
sketch9.addConstraint(Sketcher.Constraint("DistanceY", 4, 2, 1, 2, 19.0))
sketch9.addConstraint(Sketcher.Constraint("DistanceX", 0, 2, -1, 1, 3.5))
sketch9.addConstraint(Sketcher.Constraint("DistanceX", 8, 2, -1, 1, 10.3))
sketch9.addConstraint(Sketcher.Constraint("DistanceY", -1, 1, 0, 2, 13.45))
sketch9.addConstraint(Sketcher.Constraint("DistanceX", -1, 1, 4, 2, 3.95))
sketch9.setExpression("Constraints[41]", "Params.sketch9_width")
sketch9.setExpression("Constraints[42]", "Params.sketch9_height")
pad4 = body.newObject("PartDesign::Pad", "Pad003")
pad4.Profile = sketch9
pad4.setExpression("Length", "Params.pad4_length")

# Sketch on XY plane
sketch10 = body.newObject("Sketcher::SketchObject", "Sketch009")
sketch10.AttachmentSupport = (doc.getObject("XY_Plane"), [""])
sketch10.MapMode = "FlatFace"
sketch10.AttachmentOffset = App.Placement(App.Vector(0, 0, 19), App.Rotation())
sketch10.addGeometry(Part.LineSegment(App.Vector(10.9, 2.7, 0), App.Vector(10.9, 1.2, 0)), False)
sketch10.addGeometry(Part.LineSegment(App.Vector(10.9, 1.2, 0), App.Vector(5.6, 1.2, 0)), False)
sketch10.addGeometry(Part.LineSegment(App.Vector(5.6, 1.2, 0), App.Vector(5.6, 2.7, 0)), False)
sketch10.addGeometry(Part.LineSegment(App.Vector(5.6, 2.7, 0), App.Vector(10.9, 2.7, 0)), False)
sketch10.addGeometry(Part.LineSegment(App.Vector(10.9, -2.2, 0), App.Vector(10.9, -3.6, 0)), False)
sketch10.addGeometry(Part.LineSegment(App.Vector(10.9, -3.6, 0), App.Vector(5.6, -3.6, 0)), False)
sketch10.addGeometry(Part.LineSegment(App.Vector(5.6, -3.6, 0), App.Vector(5.6, -2.2, 0)), False)
sketch10.addGeometry(Part.LineSegment(App.Vector(5.6, -2.2, 0), App.Vector(10.9, -2.2, 0)), False)
sketch10.addGeometry(Part.LineSegment(App.Vector(-5.6, 2.7, 0), App.Vector(-5.6, 1.2, 0)), False)
sketch10.addGeometry(Part.LineSegment(App.Vector(-5.6, 1.2, 0), App.Vector(-10.9, 1.2, 0)), False)
sketch10.addGeometry(Part.LineSegment(App.Vector(-10.9, 1.2, 0), App.Vector(-10.9, 2.7, 0)), False)
sketch10.addGeometry(Part.LineSegment(App.Vector(-10.9, 2.7, 0), App.Vector(-5.6, 2.7, 0)), False)
sketch10.addGeometry(Part.LineSegment(App.Vector(-5.6, -2.2, 0), App.Vector(-5.6, -3.6, 0)), False)
sketch10.addGeometry(Part.LineSegment(App.Vector(-5.6, -3.6, 0), App.Vector(-10.9, -3.6, 0)), False)
sketch10.addGeometry(Part.LineSegment(App.Vector(-10.9, -3.6, 0), App.Vector(-10.9, -2.2, 0)), False)
sketch10.addGeometry(Part.LineSegment(App.Vector(-10.9, -2.2, 0), App.Vector(-5.6, -2.2, 0)), False)
sketch10.addConstraint(Sketcher.Constraint("Coincident", 0, 2, 1, 1))
sketch10.addConstraint(Sketcher.Constraint("Coincident", 1, 2, 2, 1))
sketch10.addConstraint(Sketcher.Constraint("Coincident", 2, 2, 3, 1))
sketch10.addConstraint(Sketcher.Constraint("Coincident", 3, 2, 0, 1))
sketch10.addConstraint(Sketcher.Constraint("Coincident", 4, 2, 5, 1))
sketch10.addConstraint(Sketcher.Constraint("Coincident", 5, 2, 6, 1))
sketch10.addConstraint(Sketcher.Constraint("Coincident", 6, 2, 7, 1))
sketch10.addConstraint(Sketcher.Constraint("Coincident", 7, 2, 4, 1))
sketch10.addConstraint(Sketcher.Constraint("Coincident", 8, 2, 9, 1))
sketch10.addConstraint(Sketcher.Constraint("Coincident", 9, 2, 10, 1))
sketch10.addConstraint(Sketcher.Constraint("Coincident", 10, 2, 11, 1))
sketch10.addConstraint(Sketcher.Constraint("Coincident", 11, 2, 8, 1))
sketch10.addConstraint(Sketcher.Constraint("Coincident", 12, 2, 13, 1))
sketch10.addConstraint(Sketcher.Constraint("Coincident", 13, 2, 14, 1))
sketch10.addConstraint(Sketcher.Constraint("Coincident", 14, 2, 15, 1))
sketch10.addConstraint(Sketcher.Constraint("Coincident", 15, 2, 12, 1))
sketch10.addConstraint(Sketcher.Constraint("Vertical", 0))
sketch10.addConstraint(Sketcher.Constraint("Horizontal", 1))
sketch10.addConstraint(Sketcher.Constraint("Vertical", 2))
sketch10.addConstraint(Sketcher.Constraint("Horizontal", 3))
sketch10.addConstraint(Sketcher.Constraint("Vertical", 4))
sketch10.addConstraint(Sketcher.Constraint("Horizontal", 5))
sketch10.addConstraint(Sketcher.Constraint("Vertical", 6))
sketch10.addConstraint(Sketcher.Constraint("Horizontal", 7))
sketch10.addConstraint(Sketcher.Constraint("Vertical", 8))
sketch10.addConstraint(Sketcher.Constraint("Horizontal", 9))
sketch10.addConstraint(Sketcher.Constraint("Vertical", 10))
sketch10.addConstraint(Sketcher.Constraint("Horizontal", 11))
sketch10.addConstraint(Sketcher.Constraint("Vertical", 12))
sketch10.addConstraint(Sketcher.Constraint("Horizontal", 13))
sketch10.addConstraint(Sketcher.Constraint("Vertical", 14))
sketch10.addConstraint(Sketcher.Constraint("Horizontal", 15))
sketch10.addConstraint(Sketcher.Constraint("Symmetric", 1, 2, 8, 2, -2))
sketch10.addConstraint(Sketcher.Constraint("Symmetric", 3, 2, 10, 2, -2))
sketch10.addConstraint(Sketcher.Constraint("Symmetric", 5, 2, 12, 2, -2))
sketch10.addConstraint(Sketcher.Constraint("Symmetric", 7, 2, 14, 2, -2))
sketch10.addConstraint(Sketcher.Constraint("Vertical", 3, 2, 4, 2))
sketch10.addConstraint(Sketcher.Constraint("Vertical", 2, 2, 5, 2))
sketch10.addConstraint(Sketcher.Constraint("Equal", 2, 4))
sketch10.addConstraint(Sketcher.Constraint("DistanceX", 1, 2, 1, 1, 5.3))
sketch10.addConstraint(Sketcher.Constraint("DistanceY", 0, 2, 0, 1, 1.45))
sketch10.addConstraint(Sketcher.Constraint("DistanceX", -1, 1, 0, 2, 10.9))
sketch10.addConstraint(Sketcher.Constraint("DistanceY", 4, 2, 3, 2, 6.3))
sketch10.addConstraint(Sketcher.Constraint("DistanceY", -1, 1, 0, 2, 1.225))
sketch10.setExpression("Constraints[39]", "Params.sketch10_width")
sketch10.setExpression("Constraints[40]", "Params.sketch10_height")
pad5 = body.newObject("PartDesign::Pad", "Pad004")
pad5.Profile = sketch10
pad5.setExpression("Length", "Params.pad5_length")
pad5.Reversed = True

# Sketch on XY plane
sketch11 = body.newObject("Sketcher::SketchObject", "Sketch010")
sketch11.AttachmentSupport = (doc.getObject("XY_Plane"), [""])
sketch11.MapMode = "FlatFace"
sketch11.AttachmentOffset = App.Placement(App.Vector(0, 0, 19), App.Rotation())
sketch11.addGeometry(Part.LineSegment(App.Vector(8, 14.4, 0), App.Vector(8, 10.4, 0)), False)
sketch11.addGeometry(Part.LineSegment(App.Vector(8, 10.4, 0), App.Vector(6, 10.4, 0)), False)
sketch11.addGeometry(Part.LineSegment(App.Vector(6, 10.4, 0), App.Vector(6, 14.4, 0)), False)
sketch11.addGeometry(Part.LineSegment(App.Vector(6, 14.4, 0), App.Vector(8, 14.4, 0)), False)
sketch11.addGeometry(Part.LineSegment(App.Vector(-6, 14.4, 0), App.Vector(-6, 10.4, 0)), False)
sketch11.addGeometry(Part.LineSegment(App.Vector(-6, 10.4, 0), App.Vector(-8, 10.4, 0)), False)
sketch11.addGeometry(Part.LineSegment(App.Vector(-8, 10.4, 0), App.Vector(-8, 14.4, 0)), False)
sketch11.addGeometry(Part.LineSegment(App.Vector(-8, 14.4, 0), App.Vector(-6, 14.4, 0)), False)
sketch11.addConstraint(Sketcher.Constraint("Coincident", 0, 2, 1, 1))
sketch11.addConstraint(Sketcher.Constraint("Coincident", 1, 2, 2, 1))
sketch11.addConstraint(Sketcher.Constraint("Coincident", 2, 2, 3, 1))
sketch11.addConstraint(Sketcher.Constraint("Coincident", 3, 2, 0, 1))
sketch11.addConstraint(Sketcher.Constraint("Coincident", 4, 2, 5, 1))
sketch11.addConstraint(Sketcher.Constraint("Coincident", 5, 2, 6, 1))
sketch11.addConstraint(Sketcher.Constraint("Coincident", 6, 2, 7, 1))
sketch11.addConstraint(Sketcher.Constraint("Coincident", 7, 2, 4, 1))
sketch11.addConstraint(Sketcher.Constraint("Vertical", 0))
sketch11.addConstraint(Sketcher.Constraint("Horizontal", 1))
sketch11.addConstraint(Sketcher.Constraint("Vertical", 2))
sketch11.addConstraint(Sketcher.Constraint("Horizontal", 3))
sketch11.addConstraint(Sketcher.Constraint("Vertical", 4))
sketch11.addConstraint(Sketcher.Constraint("Horizontal", 5))
sketch11.addConstraint(Sketcher.Constraint("Vertical", 6))
sketch11.addConstraint(Sketcher.Constraint("Horizontal", 7))
sketch11.addConstraint(Sketcher.Constraint("Symmetric", 1, 2, 4, 2, -2))
sketch11.addConstraint(Sketcher.Constraint("Symmetric", 3, 2, 6, 2, -2))
sketch11.addConstraint(Sketcher.Constraint("DistanceX", 1, 2, 1, 1, 2.0))
sketch11.addConstraint(Sketcher.Constraint("DistanceY", 0, 2, 0, 1, 4.0))
sketch11.addConstraint(Sketcher.Constraint("DistanceX", -1, 1, 0, 2, 8.0))
sketch11.addConstraint(Sketcher.Constraint("DistanceY", -1, 1, 0, 2, 10.4))
sketch11.setExpression("Constraints[18]", "Params.sketch11_width")
sketch11.setExpression("Constraints[19]", "Params.sketch11_height")
pad6 = body.newObject("PartDesign::Pad", "Pad005")
pad6.Profile = sketch11
pad6.setExpression("Length", "Params.pad6_length")
pad6.Reversed = True

# Sketch on XY plane
sketch12 = body.newObject("Sketcher::SketchObject", "Sketch011")
sketch12.AttachmentSupport = (doc.getObject("XY_Plane"), [""])
sketch12.MapMode = "FlatFace"
sketch12.AttachmentOffset = App.Placement(App.Vector(0, 0, 19), App.Rotation())
sketch12.addGeometry(Part.LineSegment(App.Vector(1, 18.1, 0), App.Vector(1, 14.2, 0)), False)
sketch12.addGeometry(Part.LineSegment(App.Vector(1, 14.2, 0), App.Vector(-1, 14.2, 0)), False)
sketch12.addGeometry(Part.LineSegment(App.Vector(-1, 14.2, 0), App.Vector(-1, 18.1, 0)), False)
sketch12.addGeometry(Part.LineSegment(App.Vector(-1, 18.1, 0), App.Vector(1, 18.1, 0)), False)
sketch12.addConstraint(Sketcher.Constraint("Coincident", 0, 2, 1, 1))
sketch12.addConstraint(Sketcher.Constraint("Coincident", 1, 2, 2, 1))
sketch12.addConstraint(Sketcher.Constraint("Coincident", 2, 2, 3, 1))
sketch12.addConstraint(Sketcher.Constraint("Coincident", 3, 2, 0, 1))
sketch12.addConstraint(Sketcher.Constraint("Vertical", 0))
sketch12.addConstraint(Sketcher.Constraint("Horizontal", 1))
sketch12.addConstraint(Sketcher.Constraint("Vertical", 2))
sketch12.addConstraint(Sketcher.Constraint("Horizontal", 3))
sketch12.addConstraint(Sketcher.Constraint("DistanceX", 1, 2, 1, 1, 2.0))
sketch12.addConstraint(Sketcher.Constraint("DistanceY", 0, 2, 0, 1, 4.0))
sketch12.addConstraint(Sketcher.Constraint("DistanceX", -1, 1, 0, 2, 1.0))
sketch12.addConstraint(Sketcher.Constraint("DistanceY", -1, 1, 0, 2, 14.15))
sketch12.setExpression("Constraints[8]", "Params.sketch12_width")
sketch12.setExpression("Constraints[9]", "Params.sketch12_height")
pad7 = body.newObject("PartDesign::Pad", "Pad006")
pad7.Profile = sketch12
pad7.setExpression("Length", "Params.pad7_length")
pad7.Reversed = True

# Sketch on YZ plane
sketch13 = body.newObject("Sketcher::SketchObject", "Sketch012")
sketch13.AttachmentSupport = (doc.getObject("YZ_Plane"), [""])
sketch13.MapMode = "FlatFace"
sketch13.AttachmentOffset = App.Placement(App.Vector(0, 0, 20), App.Rotation())
sketch13.addGeometry(Part.LineSegment(App.Vector(0, 2.7, 0), App.Vector(0, 0, 0)), False)
sketch13.addGeometry(Part.LineSegment(App.Vector(0, 0, 0), App.Vector(3.4, 0, 0)), False)
sketch13.addGeometry(Part.LineSegment(App.Vector(3.4, 0, 0), App.Vector(1.8, 1.6, 0)), False)
sketch13.addGeometry(Part.LineSegment(App.Vector(1.8, 1.6, 0), App.Vector(1.8, 2.7, 0)), False)
sketch13.addGeometry(Part.LineSegment(App.Vector(1.8, 2.7, 0), App.Vector(0, 2.7, 0)), False)
sketch13.addConstraint(Sketcher.Constraint("Coincident", 0, 2, 1, 1))
sketch13.addConstraint(Sketcher.Constraint("Coincident", 1, 2, 2, 1))
sketch13.addConstraint(Sketcher.Constraint("Coincident", 2, 2, 3, 1))
sketch13.addConstraint(Sketcher.Constraint("Coincident", 3, 2, 4, 1))
sketch13.addConstraint(Sketcher.Constraint("Coincident", 4, 2, 0, 1))
sketch13.addConstraint(Sketcher.Constraint("Vertical", 0))
sketch13.addConstraint(Sketcher.Constraint("Horizontal", 1))
sketch13.addConstraint(Sketcher.Constraint("Vertical", 3))
sketch13.addConstraint(Sketcher.Constraint("Horizontal", 4))
sketch13.addConstraint(Sketcher.Constraint("Coincident", 0, 2, -1, 1))
sketch13.addConstraint(Sketcher.Constraint("Angle", 2, Q("135 deg")))
sketch13.addConstraint(Sketcher.Constraint("DistanceX", 4, 2, 4, 1, 1.8))
sketch13.addConstraint(Sketcher.Constraint("DistanceY", 0, 2, 0, 1, 2.7))
sketch13.addConstraint(Sketcher.Constraint("DistanceX", 1, 1, 1, 2, 3.36))
sketch13.setExpression("Constraints[11]", "Params.sketch13_width")
sketch13.setExpression("Constraints[12]", "Params.sketch13_height")
sketch13.setExpression("Constraints[13]", "Params.sketch13_width2")
groove = body.newObject("PartDesign::Groove", "Groove")
groove.Profile = sketch13
groove.ReferenceAxis = (sketch13, ["V_Axis"])
groove.setExpression("Angle", "Params.groove_angle")
doc.recompute()

linearpattern = body.newObject("PartDesign::LinearPattern", "LinearPattern")
linearpattern.Originals = [groove]
linearpattern.Direction = (doc.getObject("X_Axis"), [""])
linearpattern.Mode = "offset"
linearpattern.setExpression("Offset", "Params.linearpattern_pitch")
linearpattern.Occurrences = 2
linearpattern.Reversed = True
body.Tip = linearpattern

doc.recompute()
